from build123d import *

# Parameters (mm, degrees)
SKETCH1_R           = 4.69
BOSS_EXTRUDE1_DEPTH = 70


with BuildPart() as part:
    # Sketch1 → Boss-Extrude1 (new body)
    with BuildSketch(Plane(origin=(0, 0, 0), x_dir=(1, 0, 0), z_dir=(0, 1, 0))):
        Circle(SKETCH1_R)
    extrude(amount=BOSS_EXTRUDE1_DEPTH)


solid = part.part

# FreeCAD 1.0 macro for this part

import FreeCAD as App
import Part
import Sketcher

doc = App.newDocument("Part")
body = doc.addObject("PartDesign::Body", "Body")

# Sketch on XZ plane
sketch1 = doc.addObject("Sketcher::SketchObject", "Sketch")
body.addObject(sketch1)
sketch1.AttachmentSupport = (doc.XZ_Plane, [""])
sketch1.MapMode = "FlatFace"
sketch1.addGeometry(Part.Circle(App.Vector(0, 0, 0), App.Vector(0, 0, 1), 4.7), False)
sketch1.addConstraint([
    Sketcher.Constraint("Coincident", 0, 3, -1, 1),
    Sketcher.Constraint("Diameter", 0, 9.38),
])
pad1 = doc.addObject("PartDesign::Pad", "Pad")
body.addObject(pad1)
pad1.Profile = sketch1
pad1.Length = 70
pad1.Reversed = True

doc.recompute()
